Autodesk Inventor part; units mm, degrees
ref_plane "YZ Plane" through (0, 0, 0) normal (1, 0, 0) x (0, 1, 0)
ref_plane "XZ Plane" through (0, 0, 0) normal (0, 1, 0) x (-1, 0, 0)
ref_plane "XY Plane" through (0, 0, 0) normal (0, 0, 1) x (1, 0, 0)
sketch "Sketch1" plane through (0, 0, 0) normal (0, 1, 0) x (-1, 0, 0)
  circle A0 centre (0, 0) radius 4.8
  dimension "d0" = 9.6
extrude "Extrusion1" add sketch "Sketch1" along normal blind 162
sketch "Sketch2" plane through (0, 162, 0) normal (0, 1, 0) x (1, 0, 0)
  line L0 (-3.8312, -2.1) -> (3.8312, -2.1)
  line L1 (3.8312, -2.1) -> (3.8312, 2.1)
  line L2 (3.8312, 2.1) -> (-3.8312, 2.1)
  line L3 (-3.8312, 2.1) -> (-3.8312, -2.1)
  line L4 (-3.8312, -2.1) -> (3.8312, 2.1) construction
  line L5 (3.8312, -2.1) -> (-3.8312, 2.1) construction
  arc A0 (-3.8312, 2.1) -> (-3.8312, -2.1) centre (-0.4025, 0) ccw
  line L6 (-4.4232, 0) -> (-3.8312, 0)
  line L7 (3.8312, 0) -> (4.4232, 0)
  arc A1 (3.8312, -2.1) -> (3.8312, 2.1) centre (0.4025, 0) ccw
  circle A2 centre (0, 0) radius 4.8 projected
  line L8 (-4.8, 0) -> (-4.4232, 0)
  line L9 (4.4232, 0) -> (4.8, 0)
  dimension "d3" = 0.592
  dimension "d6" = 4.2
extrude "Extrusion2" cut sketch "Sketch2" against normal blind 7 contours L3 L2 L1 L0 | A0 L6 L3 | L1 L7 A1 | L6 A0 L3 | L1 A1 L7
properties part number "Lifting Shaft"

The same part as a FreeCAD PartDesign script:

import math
import FreeCAD as App
import Part
import Sketcher

V = App.Vector

doc = App.newDocument("Part")
body = doc.addObject("PartDesign::Body", "Body")

sketch1 = body.newObject("Sketcher::SketchObject", "Sketch")
sketch1.AttachmentSupport = (doc.getObject("XZ_Plane"), [""])
sketch1.MapMode = "FlatFace"
sketch1.addGeometry(Part.Circle(V(0, 0, 0), V(0, 0, 1), 4.8), False)
sketch1.addConstraint(Sketcher.Constraint("Coincident", 0, 3, -1, 1))
sketch1.addConstraint(Sketcher.Constraint("Diameter", 0, 9.6))
pad1 = body.newObject("PartDesign::Pad", "Pad")
pad1.Profile = sketch1
pad1.Length = 162
pad1.Reversed = True

sketch2 = body.newObject("Sketcher::SketchObject", "Sketch001")
sketch2.AttachmentSupport = (doc.getObject("XZ_Plane"), [""])
sketch2.MapMode = "FlatFace"
sketch2.AttachmentOffset = App.Placement(V(0, 0, -162), App.Rotation())
sketch2.addGeometry(Part.LineSegment(V(3.8, -2.1, 0), V(-3.8, -2.1, 0)), False)
sketch2.addGeometry(Part.ArcOfCircle(Part.Circle(V(-0.4, 0, 0), V(0, 0, 1), 4), math.radians(149), math.radians(211)), False)
sketch2.addGeometry(Part.LineSegment(V(-3.8, 2.1, 0), V(3.8, 2.1, 0)), False)
sketch2.addGeometry(Part.ArcOfCircle(Part.Circle(V(0.4, 0, 0), V(0, 0, 1), 4), math.radians(-31), math.radians(31)), False)
sketch2.addConstraint(Sketcher.Constraint("Coincident", 0, 2, 1, 2))
sketch2.addConstraint(Sketcher.Constraint("Coincident", 1, 1, 2, 1))
sketch2.addConstraint(Sketcher.Constraint("Coincident", 2, 2, 3, 2))
sketch2.addConstraint(Sketcher.Constraint("Coincident", 3, 1, 0, 1))
sketch2.addConstraint(Sketcher.Constraint("Horizontal", 0))
sketch2.addConstraint(Sketcher.Constraint("Horizontal", 2))
sketch2.addConstraint(Sketcher.Constraint("Equal", 1, 3))
sketch2.addConstraint(Sketcher.Constraint("Symmetric", 1, 3, 3, 3, -1, 1))
sketch2.addConstraint(Sketcher.Constraint("Symmetric", 0, 2, 1, 1, -1))
sketch2.addConstraint(Sketcher.Constraint("DistanceY", 0, 2, 1, 1, 4.2))
sketch2.addConstraint(Sketcher.Constraint("Radius", 1, 4.0207))
sketch2.addConstraint(Sketcher.Constraint("DistanceX", 0, 2, 0, 1, 7.6624))
pocket1 = body.newObject("PartDesign::Pocket", "Pocket")
pocket1.Profile = sketch2
pocket1.Length = 7
pocket1.Reversed = True

doc.recompute()
